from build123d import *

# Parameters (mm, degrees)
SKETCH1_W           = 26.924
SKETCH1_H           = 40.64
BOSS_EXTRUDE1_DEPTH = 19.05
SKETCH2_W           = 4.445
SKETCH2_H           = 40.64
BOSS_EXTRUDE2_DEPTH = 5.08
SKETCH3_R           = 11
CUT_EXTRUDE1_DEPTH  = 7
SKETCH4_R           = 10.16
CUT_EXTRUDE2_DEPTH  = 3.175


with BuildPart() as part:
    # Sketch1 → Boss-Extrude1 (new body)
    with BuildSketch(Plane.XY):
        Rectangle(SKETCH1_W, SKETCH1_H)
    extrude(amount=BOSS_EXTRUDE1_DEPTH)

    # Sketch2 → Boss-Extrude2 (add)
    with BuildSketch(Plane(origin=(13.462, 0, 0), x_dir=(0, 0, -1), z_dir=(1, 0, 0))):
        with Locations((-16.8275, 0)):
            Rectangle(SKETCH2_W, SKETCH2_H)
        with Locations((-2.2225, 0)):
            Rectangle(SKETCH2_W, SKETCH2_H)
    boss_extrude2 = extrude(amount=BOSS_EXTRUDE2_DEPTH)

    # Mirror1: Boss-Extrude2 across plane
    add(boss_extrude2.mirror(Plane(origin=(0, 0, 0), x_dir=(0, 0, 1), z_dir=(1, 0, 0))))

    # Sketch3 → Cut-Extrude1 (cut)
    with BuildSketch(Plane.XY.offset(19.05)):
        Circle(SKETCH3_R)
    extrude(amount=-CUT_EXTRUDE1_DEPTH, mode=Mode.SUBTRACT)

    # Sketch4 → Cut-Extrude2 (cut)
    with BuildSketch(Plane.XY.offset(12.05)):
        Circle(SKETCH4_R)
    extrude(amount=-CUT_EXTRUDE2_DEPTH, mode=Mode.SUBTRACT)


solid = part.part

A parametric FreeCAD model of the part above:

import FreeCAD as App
import Part
import Sketcher

V = App.Vector
Q = App.Units.Quantity

doc = App.newDocument("Part")
body = doc.addObject("PartDesign::Body", "Body")

sketch1 = body.newObject("Sketcher::SketchObject", "Sketch")
sketch1.AttachmentSupport = (doc.getObject("XY_Plane"), [""])
sketch1.MapMode = "FlatFace"
sketch1.addGeometry([
    Part.LineSegment(V(-13, 20, 0), V(-13, -20, 0)),
    Part.LineSegment(V(-13, -20, 0), V(13, -20, 0)),
    Part.LineSegment(V(13, -20, 0), V(13, 20, 0)),
    Part.LineSegment(V(13, 20, 0), V(-13, 20, 0)),
], False)
sketch1.addConstraint([
    Sketcher.Constraint("Coincident", 0, 2, 1, 1),
    Sketcher.Constraint("Coincident", 1, 2, 2, 1),
    Sketcher.Constraint("Coincident", 2, 2, 3, 1),
    Sketcher.Constraint("Coincident", 3, 2, 0, 1),
    Sketcher.Constraint("Vertical", 0),
    Sketcher.Constraint("Horizontal", 1),
    Sketcher.Constraint("Vertical", 2),
    Sketcher.Constraint("Horizontal", 3),
    Sketcher.Constraint("Symmetric", 0, 2, 2, 2, -1, 1),
    Sketcher.Constraint("DistanceY", 0, 2, 0, 1, Q("1.6 in")),
    Sketcher.Constraint("DistanceX", 1, 1, 1, 2, Q("1.06 in")),
])
pad1 = body.newObject("PartDesign::Pad", "Pad")
pad1.Profile = sketch1
pad1.Length = Q("0.75 in")

sketch2 = body.newObject("Sketcher::SketchObject", "Sketch001")
sketch2.AttachmentSupport = (doc.getObject("YZ_Plane"), [""])
sketch2.MapMode = "FlatFace"
sketch2.AttachmentOffset = App.Placement(V(0, 0, 0.53 * 25.4), App.Rotation())
sketch2.addGeometry([
    Part.LineSegment(V(20.3, 19.1, 0), V(-20.3, 19.1, 0)),
    Part.LineSegment(V(-20.3, 19.1, 0), V(-20.3, 14.6, 0)),
    Part.LineSegment(V(-20.3, 14.6, 0), V(20.3, 14.6, 0)),
    Part.LineSegment(V(20.3, 14.6, 0), V(20.3, 19.1, 0)),
    Part.LineSegment(V(20.3, 4.4, 0), V(-20.3, 4.4, 0)),
    Part.LineSegment(V(-20.3, 4.4, 0), V(-20.3, 0, 0)),
    Part.LineSegment(V(-20.3, 0, 0), V(20.3, 0, 0)),
    Part.LineSegment(V(20.3, 0, 0), V(20.3, 4.4, 0)),
], False)
sketch2.addConstraint([
    Sketcher.Constraint("Coincident", 0, 2, 1, 1),
    Sketcher.Constraint("Coincident", 1, 2, 2, 1),
    Sketcher.Constraint("Coincident", 2, 2, 3, 1),
    Sketcher.Constraint("Coincident", 3, 2, 0, 1),
    Sketcher.Constraint("Coincident", 4, 2, 5, 1),
    Sketcher.Constraint("Coincident", 5, 2, 6, 1),
    Sketcher.Constraint("Coincident", 6, 2, 7, 1),
    Sketcher.Constraint("Coincident", 7, 2, 4, 1),
    Sketcher.Constraint("Horizontal", 0),
    Sketcher.Constraint("Vertical", 1),
    Sketcher.Constraint("Horizontal", 2),
    Sketcher.Constraint("Vertical", 3),
    Sketcher.Constraint("Horizontal", 4),
    Sketcher.Constraint("Vertical", 5),
    Sketcher.Constraint("Horizontal", 6),
    Sketcher.Constraint("Vertical", 7),
    Sketcher.Constraint("Symmetric", 5, 2, 6, 2, -1, 1),
    Sketcher.Constraint("Vertical", 1, 2, 4, 2),
    Sketcher.Constraint("Vertical", 3, 2, 6, 2),
    Sketcher.Constraint("Equal", 3, 5),
    Sketcher.Constraint("DistanceX", 0, 2, 0, 1, Q("1.6 in")),
    Sketcher.Constraint("DistanceY", 4, 2, 1, 2, Q("0.4 in")),
    Sketcher.Constraint("DistanceY", 1, 2, 1, 1, Q("0.175 in")),
])
pad2 = body.newObject("PartDesign::Pad", "Pad001")
pad2.Profile = sketch2
pad2.Length = Q("0.2 in")
doc.recompute()

mirrored = body.newObject("PartDesign::Mirrored", "Mirrored")
mirrored.Originals = [pad2]
mirrored.MirrorPlane = (doc.getObject("YZ_Plane"), [""])
body.Tip = mirrored

sketch3 = body.newObject("Sketcher::SketchObject", "Sketch002")
sketch3.AttachmentSupport = (doc.getObject("XY_Plane"), [""])
sketch3.MapMode = "FlatFace"
sketch3.AttachmentOffset = App.Placement(V(0, 0, 0.75 * 25.4), App.Rotation())
sketch3.addGeometry(Part.Circle(V(0, 0, 0), V(0, 0, 1), 11), False)
sketch3.addConstraint([
    Sketcher.Constraint("Coincident", 0, 3, -1, 1),
    Sketcher.Constraint("Diameter", 0, Q("22 mm")),
])
pocket1 = body.newObject("PartDesign::Pocket", "Pocket")
pocket1.Profile = sketch3
pocket1.Length = 7

sketch4 = body.newObject("Sketcher::SketchObject", "Sketch003")
sketch4.AttachmentSupport = (doc.getObject("XY_Plane"), [""])
sketch4.MapMode = "FlatFace"
sketch4.AttachmentOffset = App.Placement(V(0, 0, 12.05), App.Rotation())
sketch4.addGeometry(Part.Circle(V(0, 0, 0), V(0, 0, 1), 10), False)
sketch4.addConstraint([
    Sketcher.Constraint("Coincident", 0, 3, -1, 1),
    Sketcher.Constraint("Diameter", 0, Q("0.8 in")),
])
pocket2 = body.newObject("PartDesign::Pocket", "Pocket001")
pocket2.Profile = sketch4
pocket2.Length = Q("0.125 in")

doc.recompute()
